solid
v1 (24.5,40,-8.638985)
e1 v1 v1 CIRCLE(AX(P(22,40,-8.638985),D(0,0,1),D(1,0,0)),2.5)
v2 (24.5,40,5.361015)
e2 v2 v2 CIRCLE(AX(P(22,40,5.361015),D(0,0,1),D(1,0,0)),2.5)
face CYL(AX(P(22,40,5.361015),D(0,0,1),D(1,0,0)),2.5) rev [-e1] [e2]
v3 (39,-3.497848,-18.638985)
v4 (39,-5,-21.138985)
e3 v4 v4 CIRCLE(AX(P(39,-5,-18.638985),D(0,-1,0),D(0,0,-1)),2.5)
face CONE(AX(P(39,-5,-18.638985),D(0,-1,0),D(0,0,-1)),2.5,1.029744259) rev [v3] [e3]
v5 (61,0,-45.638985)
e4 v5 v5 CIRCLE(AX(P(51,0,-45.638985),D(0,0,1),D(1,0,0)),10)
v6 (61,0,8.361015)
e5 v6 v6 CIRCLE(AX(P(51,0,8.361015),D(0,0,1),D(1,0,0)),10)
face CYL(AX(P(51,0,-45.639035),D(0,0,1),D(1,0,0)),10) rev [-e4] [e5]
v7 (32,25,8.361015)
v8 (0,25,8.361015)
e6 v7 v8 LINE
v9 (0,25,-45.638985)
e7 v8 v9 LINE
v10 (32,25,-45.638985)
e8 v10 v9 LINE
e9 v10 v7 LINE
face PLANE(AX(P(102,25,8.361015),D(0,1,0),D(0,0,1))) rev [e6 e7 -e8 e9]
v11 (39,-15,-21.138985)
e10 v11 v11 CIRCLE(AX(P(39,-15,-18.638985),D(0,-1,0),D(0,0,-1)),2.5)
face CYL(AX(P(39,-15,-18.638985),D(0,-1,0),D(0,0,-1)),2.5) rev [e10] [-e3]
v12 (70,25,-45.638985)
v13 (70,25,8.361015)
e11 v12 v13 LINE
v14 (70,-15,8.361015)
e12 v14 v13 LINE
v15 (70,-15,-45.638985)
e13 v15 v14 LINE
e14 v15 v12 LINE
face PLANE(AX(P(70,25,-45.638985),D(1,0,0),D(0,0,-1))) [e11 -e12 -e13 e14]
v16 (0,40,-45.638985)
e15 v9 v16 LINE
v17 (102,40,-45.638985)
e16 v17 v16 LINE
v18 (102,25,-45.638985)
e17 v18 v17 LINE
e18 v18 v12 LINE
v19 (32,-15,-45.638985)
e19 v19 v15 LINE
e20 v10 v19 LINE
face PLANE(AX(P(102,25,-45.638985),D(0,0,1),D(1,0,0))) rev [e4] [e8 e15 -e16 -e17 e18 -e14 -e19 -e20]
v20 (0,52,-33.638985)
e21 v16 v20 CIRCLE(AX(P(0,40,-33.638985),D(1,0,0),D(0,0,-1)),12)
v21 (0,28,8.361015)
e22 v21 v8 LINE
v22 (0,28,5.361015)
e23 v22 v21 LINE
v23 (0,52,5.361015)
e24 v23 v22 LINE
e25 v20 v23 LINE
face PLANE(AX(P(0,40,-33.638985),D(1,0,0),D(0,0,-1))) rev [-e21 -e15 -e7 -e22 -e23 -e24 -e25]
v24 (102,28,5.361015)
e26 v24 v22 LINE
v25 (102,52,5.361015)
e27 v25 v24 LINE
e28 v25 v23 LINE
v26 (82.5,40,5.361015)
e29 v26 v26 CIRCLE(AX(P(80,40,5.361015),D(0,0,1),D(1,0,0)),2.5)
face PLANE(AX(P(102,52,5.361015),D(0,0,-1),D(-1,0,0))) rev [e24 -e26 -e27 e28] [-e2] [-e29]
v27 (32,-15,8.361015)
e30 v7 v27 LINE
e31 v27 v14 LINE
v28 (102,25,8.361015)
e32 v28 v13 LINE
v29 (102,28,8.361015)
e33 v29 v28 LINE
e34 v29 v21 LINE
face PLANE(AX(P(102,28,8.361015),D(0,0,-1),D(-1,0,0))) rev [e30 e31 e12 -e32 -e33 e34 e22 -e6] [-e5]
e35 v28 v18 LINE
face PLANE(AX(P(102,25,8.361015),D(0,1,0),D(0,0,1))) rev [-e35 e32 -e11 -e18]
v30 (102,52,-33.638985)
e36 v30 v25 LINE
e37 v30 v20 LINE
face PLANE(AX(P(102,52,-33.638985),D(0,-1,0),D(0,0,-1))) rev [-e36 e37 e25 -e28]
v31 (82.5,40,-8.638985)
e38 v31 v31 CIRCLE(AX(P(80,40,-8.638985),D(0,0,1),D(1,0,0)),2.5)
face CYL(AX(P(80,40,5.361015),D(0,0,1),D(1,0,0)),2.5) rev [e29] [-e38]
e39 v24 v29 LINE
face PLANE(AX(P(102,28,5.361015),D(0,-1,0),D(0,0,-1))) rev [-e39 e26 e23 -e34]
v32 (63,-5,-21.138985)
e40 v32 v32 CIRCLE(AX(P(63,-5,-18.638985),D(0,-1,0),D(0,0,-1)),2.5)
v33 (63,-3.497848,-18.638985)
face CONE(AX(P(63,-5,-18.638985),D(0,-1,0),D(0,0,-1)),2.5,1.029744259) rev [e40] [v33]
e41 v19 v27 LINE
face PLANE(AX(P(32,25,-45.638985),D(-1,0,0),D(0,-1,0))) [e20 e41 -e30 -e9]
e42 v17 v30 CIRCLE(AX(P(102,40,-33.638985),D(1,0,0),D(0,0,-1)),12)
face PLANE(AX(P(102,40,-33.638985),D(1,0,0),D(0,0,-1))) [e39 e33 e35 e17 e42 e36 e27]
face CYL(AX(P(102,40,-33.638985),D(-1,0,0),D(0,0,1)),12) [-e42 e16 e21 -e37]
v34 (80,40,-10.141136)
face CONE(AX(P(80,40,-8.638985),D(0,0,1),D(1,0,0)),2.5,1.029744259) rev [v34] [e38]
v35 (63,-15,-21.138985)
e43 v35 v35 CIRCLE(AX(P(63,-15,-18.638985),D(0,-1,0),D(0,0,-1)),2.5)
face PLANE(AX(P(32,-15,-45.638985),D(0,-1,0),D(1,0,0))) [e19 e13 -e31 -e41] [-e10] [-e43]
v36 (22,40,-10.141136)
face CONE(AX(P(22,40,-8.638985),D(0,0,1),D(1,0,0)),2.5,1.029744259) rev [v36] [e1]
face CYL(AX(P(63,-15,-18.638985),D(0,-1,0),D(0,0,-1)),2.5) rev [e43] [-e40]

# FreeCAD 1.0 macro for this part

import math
import FreeCAD as App
import Part
import Sketcher
Q = App.Units.Quantity


def add_polygon(sketch, points):
    """Adds a closed chain of lines whose ends are joined by coincident constraints."""
    first, n = sketch.GeometryCount, len(points)
    for a, b in zip(points, points[1:] + points[:1]):
        sketch.addGeometry(Part.LineSegment(App.Vector(*a, 0), App.Vector(*b, 0)), False)
    for i in range(n):
        sketch.addConstraint(Sketcher.Constraint("Coincident", first + i, 2, first + (i + 1) % n, 1))

doc = App.newDocument("Part")
params = doc.addObject("Spreadsheet::Sheet", "Params")
for row, (alias, value) in enumerate([
    ("sketch1_radius", "12 mm"),
    ("sketch1_width", "24 mm"),
    ("sketch1_width2", "3 mm"),
    ("sketch1_height", "54 mm"),
    ("pad1_length", "102 mm"),
    ("sketch2_width", "38 mm"),
    ("sketch2_height", "40 mm"),
    ("pad2_length", "54 mm"),
    ("sketch3_diameter", "20 mm"),
    ("sketch4_diameter", "5 mm"),
    ("hole_diameter", "5 mm"),
    ("hole_depth", "14 mm"),
    ("sketch5_diameter", "5 mm"),
    ("hole2_diameter", "5 mm"),
    ("hole2_depth", "10 mm"),
], start=1):
    params.set(f"A{row}", alias)
    params.set(f"B{row}", "=" + value)
    params.setAlias(f"B{row}", alias)

body = doc.addObject("PartDesign::Body", "Body")

sketch1 = body.newObject("Sketcher::SketchObject", "Sketch")
sketch1.AttachmentSupport = (doc.getObject("YZ_Plane"), [""])
sketch1.MapMode = "FlatFace"
sketch1.addGeometry([
    Part.LineSegment(App.Vector(52, 5.4, 0), App.Vector(28, 5.4, 0)),
    Part.LineSegment(App.Vector(28, 5.4, 0), App.Vector(28, 8.4, 0)),
    Part.LineSegment(App.Vector(28, 8.4, 0), App.Vector(25, 8.4, 0)),
    Part.LineSegment(App.Vector(25, 8.4, 0), App.Vector(25, -45.6, 0)),
    Part.LineSegment(App.Vector(25, -45.6, 0), App.Vector(40, -45.6, 0)),
    Part.ArcOfCircle(Part.Circle(App.Vector(40, -33.6, 0), App.Vector(0, 0, 1), 12), math.radians(-90), math.radians(0)),
    Part.LineSegment(App.Vector(52, -33.6, 0), App.Vector(52, 5.4, 0)),
], False)
sketch1.addConstraint([
    Sketcher.Constraint("Coincident", 0, 2, 1, 1),
    Sketcher.Constraint("Coincident", 1, 2, 2, 1),
    Sketcher.Constraint("Coincident", 2, 2, 3, 1),
    Sketcher.Constraint("Coincident", 3, 2, 4, 1),
    Sketcher.Constraint("Tangent", 4, 2, 5, 1),
    Sketcher.Constraint("Tangent", 5, 2, 6, 1),
    Sketcher.Constraint("Coincident", 6, 2, 0, 1),
    Sketcher.Constraint("Horizontal", 0),
    Sketcher.Constraint("Vertical", 1),
    Sketcher.Constraint("Horizontal", 2),
    Sketcher.Constraint("Vertical", 3),
    Sketcher.Constraint("Horizontal", 4),
    Sketcher.Constraint("Vertical", 6),
    Sketcher.Constraint("Equal", 2, 1),
    Sketcher.Constraint("Radius", 5, Q("12 mm")),
    Sketcher.Constraint("DistanceX", 0, 2, 0, 1, Q("24 mm")),
    Sketcher.Constraint("DistanceX", 2, 2, 2, 1, Q("3 mm")),
    Sketcher.Constraint("DistanceY", 3, 2, 3, 1, Q("54 mm")),
    Sketcher.Constraint("DistanceX", -1, 1, 5, 3, Q("40 mm")),
    Sketcher.Constraint("DistanceY", 5, 3, -1, 1, Q("33.638985 mm")),
])
sketch1.setExpression("Constraints[14]", "Params.sketch1_radius")
sketch1.setExpression("Constraints[15]", "Params.sketch1_width")
sketch1.setExpression("Constraints[16]", "Params.sketch1_width2")
sketch1.setExpression("Constraints[17]", "Params.sketch1_height")
pad1 = body.newObject("PartDesign::Pad", "Pad")
pad1.Profile = sketch1
pad1.setExpression("Length", "Params.pad1_length")

sketch2 = body.newObject("Sketcher::SketchObject", "Sketch001")
sketch2.AttachmentSupport = (doc.getObject("XY_Plane"), [""])
sketch2.MapMode = "FlatFace"
sketch2.AttachmentOffset = App.Placement(App.Vector(0, 0, 8.361015), App.Rotation())
add_polygon(sketch2, [(32, 25), (32, -15), (70, -15), (70, 25)])
sketch2.addConstraint([
    Sketcher.Constraint("Vertical", 0),
    Sketcher.Constraint("Horizontal", 1),
    Sketcher.Constraint("Vertical", 2),
    Sketcher.Constraint("Horizontal", 3),
    Sketcher.Constraint("DistanceX", 1, 1, 1, 2, Q("38 mm")),
    Sketcher.Constraint("DistanceY", 0, 2, 0, 1, Q("40 mm")),
    Sketcher.Constraint("DistanceX", -1, 1, 0, 2, Q("32 mm")),
    Sketcher.Constraint("DistanceY", 0, 2, -1, 1, Q("15 mm")),
])
sketch2.setExpression("Constraints[8]", "Params.sketch2_width")
sketch2.setExpression("Constraints[9]", "Params.sketch2_height")
pad2 = body.newObject("PartDesign::Pad", "Pad001")
pad2.Profile = sketch2
pad2.setExpression("Length", "Params.pad2_length")
pad2.Reversed = True

sketch3 = body.newObject("Sketcher::SketchObject", "Sketch002")
sketch3.AttachmentSupport = (doc.getObject("XY_Plane"), [""])
sketch3.MapMode = "FlatFace"
sketch3.AttachmentOffset = App.Placement(App.Vector(0, 0, 8.361015), App.Rotation())
sketch3.addGeometry(Part.Circle(App.Vector(51, 0, 0), App.Vector(0, 0, 1), 10), False)
sketch3.addConstraint([
    Sketcher.Constraint("PointOnObject", 0, 3, -1),
    Sketcher.Constraint("Diameter", 0, Q("20 mm")),
    Sketcher.Constraint("DistanceX", -1, 1, 0, 3, Q("51 mm")),
])
sketch3.setExpression("Constraints[1]", "Params.sketch3_diameter")
pocket1 = body.newObject("PartDesign::Pocket", "Pocket")
pocket1.Profile = sketch3
pocket1.Type = "ThroughAll"

sketch4 = body.newObject("Sketcher::SketchObject", "Sketch003")
sketch4.AttachmentSupport = (doc.getObject("XY_Plane"), [""])
sketch4.MapMode = "FlatFace"
sketch4.AttachmentOffset = App.Placement(App.Vector(0, 0, 5.361015), App.Rotation())
sketch4.addGeometry([
    Part.Circle(App.Vector(22, 40, 0), App.Vector(0, 0, 1), 2.5),
    Part.Circle(App.Vector(80, 40, 0), App.Vector(0, 0, 1), 2.5),
], False)
sketch4.addConstraint([
    Sketcher.Constraint("Equal", 0, 1),
    Sketcher.Constraint("Horizontal", 0, 3, 1, 3),
    Sketcher.Constraint("Diameter", 0, Q("5 mm")),
    Sketcher.Constraint("DistanceX", -1, 1, 0, 3, Q("22 mm")),
    Sketcher.Constraint("DistanceY", -1, 1, 0, 3, Q("40 mm")),
    Sketcher.Constraint("DistanceX", -1, 1, 1, 3, Q("80 mm")),
])
sketch4.setExpression("Constraints[2]", "Params.sketch4_diameter")
doc.recompute()
hole = body.newObject("PartDesign::Hole", "Hole")
hole.Profile = sketch4
hole.ThreadType = "None"
hole.setExpression("Diameter", "Params.hole_diameter")
hole.DepthType = "Dimension"
hole.setExpression("Depth", "Params.hole_depth")
hole.DrillPoint = "Angled"
hole.DrillPointAngle = 118

sketch5 = body.newObject("Sketcher::SketchObject", "Sketch004")
sketch5.AttachmentSupport = (doc.getObject("XZ_Plane"), [""])
sketch5.MapMode = "FlatFace"
sketch5.AttachmentOffset = App.Placement(App.Vector(0, 0, 15), App.Rotation())
sketch5.addGeometry([
    Part.Circle(App.Vector(39, -18.6, 0), App.Vector(0, 0, 1), 2.5),
    Part.Circle(App.Vector(63, -18.6, 0), App.Vector(0, 0, 1), 2.5),
], False)
sketch5.addConstraint([
    Sketcher.Constraint("Equal", 0, 1),
    Sketcher.Constraint("Horizontal", 0, 3, 1, 3),
    Sketcher.Constraint("Diameter", 0, Q("5 mm")),
    Sketcher.Constraint("DistanceX", -1, 1, 0, 3, Q("39 mm")),
    Sketcher.Constraint("DistanceX", -1, 1, 1, 3, Q("63 mm")),
    Sketcher.Constraint("DistanceY", 0, 3, -1, 1, Q("18.638985 mm")),
])
sketch5.setExpression("Constraints[2]", "Params.sketch5_diameter")
doc.recompute()
hole2 = body.newObject("PartDesign::Hole", "Hole001")
hole2.Profile = sketch5
hole2.ThreadType = "None"
hole2.setExpression("Diameter", "Params.hole2_diameter")
hole2.DepthType = "Dimension"
hole2.setExpression("Depth", "Params.hole2_depth")
hole2.DrillPoint = "Angled"
hole2.DrillPointAngle = 118

doc.recompute()
